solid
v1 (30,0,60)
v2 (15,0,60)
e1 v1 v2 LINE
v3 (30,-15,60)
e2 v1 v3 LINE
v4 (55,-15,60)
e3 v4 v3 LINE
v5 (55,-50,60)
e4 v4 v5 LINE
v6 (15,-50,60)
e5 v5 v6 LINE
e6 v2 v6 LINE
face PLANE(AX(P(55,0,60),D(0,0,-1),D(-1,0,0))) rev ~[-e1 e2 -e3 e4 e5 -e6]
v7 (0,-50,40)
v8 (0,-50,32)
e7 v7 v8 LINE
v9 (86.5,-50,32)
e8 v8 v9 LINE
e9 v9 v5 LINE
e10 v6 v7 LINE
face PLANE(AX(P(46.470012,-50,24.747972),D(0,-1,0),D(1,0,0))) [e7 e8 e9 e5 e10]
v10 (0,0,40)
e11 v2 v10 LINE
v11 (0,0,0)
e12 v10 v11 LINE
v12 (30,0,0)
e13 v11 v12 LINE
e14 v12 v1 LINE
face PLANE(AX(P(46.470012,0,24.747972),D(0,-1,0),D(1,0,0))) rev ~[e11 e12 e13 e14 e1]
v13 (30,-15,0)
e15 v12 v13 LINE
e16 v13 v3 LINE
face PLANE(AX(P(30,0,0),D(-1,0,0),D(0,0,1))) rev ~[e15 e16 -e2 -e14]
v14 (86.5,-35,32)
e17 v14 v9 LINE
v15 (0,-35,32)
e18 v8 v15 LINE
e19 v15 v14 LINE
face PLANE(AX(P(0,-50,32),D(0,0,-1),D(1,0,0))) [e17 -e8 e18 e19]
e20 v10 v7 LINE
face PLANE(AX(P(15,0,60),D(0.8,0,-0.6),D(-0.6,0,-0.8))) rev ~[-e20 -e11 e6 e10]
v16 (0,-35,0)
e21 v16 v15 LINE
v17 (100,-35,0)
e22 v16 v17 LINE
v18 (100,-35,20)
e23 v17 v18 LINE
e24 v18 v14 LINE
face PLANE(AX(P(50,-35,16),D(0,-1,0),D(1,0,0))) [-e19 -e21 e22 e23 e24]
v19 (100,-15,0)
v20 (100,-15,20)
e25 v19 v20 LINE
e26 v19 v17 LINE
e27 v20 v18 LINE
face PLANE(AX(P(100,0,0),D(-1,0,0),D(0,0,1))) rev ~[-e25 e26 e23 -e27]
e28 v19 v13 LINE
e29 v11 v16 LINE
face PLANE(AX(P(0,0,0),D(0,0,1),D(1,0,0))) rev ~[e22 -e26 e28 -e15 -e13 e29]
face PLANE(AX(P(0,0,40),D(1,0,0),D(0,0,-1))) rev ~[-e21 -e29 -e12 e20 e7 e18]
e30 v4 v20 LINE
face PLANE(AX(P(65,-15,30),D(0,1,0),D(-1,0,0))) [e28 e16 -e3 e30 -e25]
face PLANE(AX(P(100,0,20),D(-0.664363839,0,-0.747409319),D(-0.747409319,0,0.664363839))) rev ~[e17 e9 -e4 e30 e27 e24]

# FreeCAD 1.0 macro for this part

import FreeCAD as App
import Part
import Sketcher
from FreeCAD import Vector

doc = App.newDocument("Part")
params = doc.addObject("Spreadsheet::Sheet", "Params")
for row, (alias, value) in enumerate([
    ("sketch1_width", "100 mm"),
    ("sketch1_width2", "40 mm"),
    ("sketch1_height", "20 mm"),
    ("sketch1_length", "25 mm"),
    ("pad1_length", "50 mm"),
    ("sketch2_width", "100 mm"),
    ("sketch2_height", "32 mm"),
    ("pocket1_length", "15 mm"),
    ("sketch3_width", "70 mm"),
    ("sketch3_height", "60 mm"),
    ("pocket2_length", "15 mm"),
], start=1):
    params.set(f"A{row}", alias)
    params.set(f"B{row}", "=" + value)
    params.setAlias(f"B{row}", alias)

body = doc.addObject("PartDesign::Body", "Body")

sketch1 = body.newObject("Sketcher::SketchObject", "Sketch")
sketch1.AttachmentSupport = (doc.getObject("XZ_Plane"), [""])
sketch1.MapMode = "FlatFace"
sketch1.addGeometry(Part.LineSegment(Vector(0, 40, 0), Vector(0, 0, 0)), False)
sketch1.addGeometry(Part.LineSegment(Vector(0, 0, 0), Vector(100, 0, 0)), False)
sketch1.addGeometry(Part.LineSegment(Vector(100, 0, 0), Vector(100, 20, 0)), False)
sketch1.addGeometry(Part.LineSegment(Vector(100, 20, 0), Vector(55, 60, 0)), False)
sketch1.addGeometry(Part.LineSegment(Vector(55, 60, 0), Vector(15, 60, 0)), False)
sketch1.addGeometry(Part.LineSegment(Vector(15, 60, 0), Vector(0, 40, 0)), False)
sketch1.addConstraint(Sketcher.Constraint("Coincident", 0, 2, 1, 1))
sketch1.addConstraint(Sketcher.Constraint("Coincident", 1, 2, 2, 1))
sketch1.addConstraint(Sketcher.Constraint("Coincident", 2, 2, 3, 1))
sketch1.addConstraint(Sketcher.Constraint("Coincident", 3, 2, 4, 1))
sketch1.addConstraint(Sketcher.Constraint("Coincident", 4, 2, 5, 1))
sketch1.addConstraint(Sketcher.Constraint("Coincident", 5, 2, 0, 1))
sketch1.addConstraint(Sketcher.Constraint("Vertical", 0))
sketch1.addConstraint(Sketcher.Constraint("Horizontal", 1))
sketch1.addConstraint(Sketcher.Constraint("Vertical", 2))
sketch1.addConstraint(Sketcher.Constraint("Horizontal", 4))
sketch1.addConstraint(Sketcher.Constraint("Coincident", 0, 2, -1, 1))
sketch1.addConstraint(Sketcher.Constraint("Equal", 4, 0))
sketch1.addConstraint(Sketcher.Constraint("DistanceX", 1, 1, 1, 2, 100.0))
sketch1.addConstraint(Sketcher.Constraint("DistanceX", 4, 2, 4, 1, 40.0))
sketch1.addConstraint(Sketcher.Constraint("DistanceY", 2, 1, 2, 2, 20.0))
sketch1.addConstraint(Sketcher.Constraint("Distance", 5, 25.0))
sketch1.addConstraint(Sketcher.Constraint("DistanceX", -1, 1, 3, 2, 55.0))
sketch1.setExpression("Constraints[12]", "Params.sketch1_width")
sketch1.setExpression("Constraints[13]", "Params.sketch1_width2")
sketch1.setExpression("Constraints[14]", "Params.sketch1_height")
sketch1.setExpression("Constraints[15]", "Params.sketch1_length")
pad1 = body.newObject("PartDesign::Pad", "Pad")
pad1.Profile = sketch1
pad1.setExpression("Length", "Params.pad1_length")

sketch2 = body.newObject("Sketcher::SketchObject", "Sketch001")
sketch2.AttachmentSupport = (doc.getObject("XZ_Plane"), [""])
sketch2.MapMode = "FlatFace"
sketch2.AttachmentOffset = App.Placement(Vector(0, 0, 50), App.Rotation())
sketch2.addGeometry(Part.LineSegment(Vector(0, 32, 0), Vector(0, 0, 0)), False)
sketch2.addGeometry(Part.LineSegment(Vector(0, 0, 0), Vector(100, 0, 0)), False)
sketch2.addGeometry(Part.LineSegment(Vector(100, 0, 0), Vector(100, 32, 0)), False)
sketch2.addGeometry(Part.LineSegment(Vector(100, 32, 0), Vector(0, 32, 0)), False)
sketch2.addConstraint(Sketcher.Constraint("Coincident", 0, 2, 1, 1))
sketch2.addConstraint(Sketcher.Constraint("Coincident", 1, 2, 2, 1))
sketch2.addConstraint(Sketcher.Constraint("Coincident", 2, 2, 3, 1))
sketch2.addConstraint(Sketcher.Constraint("Coincident", 3, 2, 0, 1))
sketch2.addConstraint(Sketcher.Constraint("Vertical", 0))
sketch2.addConstraint(Sketcher.Constraint("Horizontal", 1))
sketch2.addConstraint(Sketcher.Constraint("Vertical", 2))
sketch2.addConstraint(Sketcher.Constraint("Horizontal", 3))
sketch2.addConstraint(Sketcher.Constraint("Coincident", 0, 2, -1, 1))
sketch2.addConstraint(Sketcher.Constraint("DistanceX", 1, 1, 1, 2, 100.0))
sketch2.addConstraint(Sketcher.Constraint("DistanceY", 0, 2, 0, 1, 32.0))
sketch2.setExpression("Constraints[9]", "Params.sketch2_width")
sketch2.setExpression("Constraints[10]", "Params.sketch2_height")
pocket1 = body.newObject("PartDesign::Pocket", "Pocket")
pocket1.Profile = sketch2
pocket1.setExpression("Length", "Params.pocket1_length")

sketch3 = body.newObject("Sketcher::SketchObject", "Sketch002")
sketch3.AttachmentSupport = (doc.getObject("XZ_Plane"), [""])
sketch3.MapMode = "FlatFace"
sketch3.addGeometry(Part.LineSegment(Vector(100, 60, 0), Vector(100, 0, 0)), False)
sketch3.addGeometry(Part.LineSegment(Vector(100, 0, 0), Vector(30, 0, 0)), False)
sketch3.addGeometry(Part.LineSegment(Vector(30, 0, 0), Vector(30, 60, 0)), False)
sketch3.addGeometry(Part.LineSegment(Vector(30, 60, 0), Vector(100, 60, 0)), False)
sketch3.addConstraint(Sketcher.Constraint("Coincident", 0, 2, 1, 1))
sketch3.addConstraint(Sketcher.Constraint("Coincident", 1, 2, 2, 1))
sketch3.addConstraint(Sketcher.Constraint("Coincident", 2, 2, 3, 1))
sketch3.addConstraint(Sketcher.Constraint("Coincident", 3, 2, 0, 1))
sketch3.addConstraint(Sketcher.Constraint("Vertical", 0))
sketch3.addConstraint(Sketcher.Constraint("Horizontal", 1))
sketch3.addConstraint(Sketcher.Constraint("Vertical", 2))
sketch3.addConstraint(Sketcher.Constraint("Horizontal", 3))
sketch3.addConstraint(Sketcher.Constraint("PointOnObject", 0, 2, -1))
sketch3.addConstraint(Sketcher.Constraint("DistanceX", 1, 2, 1, 1, 70.0))
sketch3.addConstraint(Sketcher.Constraint("DistanceY", 0, 2, 0, 1, 60.0))
sketch3.addConstraint(Sketcher.Constraint("DistanceX", -1, 1, 0, 2, 100.0))
sketch3.setExpression("Constraints[9]", "Params.sketch3_width")
sketch3.setExpression("Constraints[10]", "Params.sketch3_height")
pocket2 = body.newObject("PartDesign::Pocket", "Pocket001")
pocket2.Profile = sketch3
pocket2.setExpression("Length", "Params.pocket2_length")
pocket2.Reversed = True

doc.recompute()
